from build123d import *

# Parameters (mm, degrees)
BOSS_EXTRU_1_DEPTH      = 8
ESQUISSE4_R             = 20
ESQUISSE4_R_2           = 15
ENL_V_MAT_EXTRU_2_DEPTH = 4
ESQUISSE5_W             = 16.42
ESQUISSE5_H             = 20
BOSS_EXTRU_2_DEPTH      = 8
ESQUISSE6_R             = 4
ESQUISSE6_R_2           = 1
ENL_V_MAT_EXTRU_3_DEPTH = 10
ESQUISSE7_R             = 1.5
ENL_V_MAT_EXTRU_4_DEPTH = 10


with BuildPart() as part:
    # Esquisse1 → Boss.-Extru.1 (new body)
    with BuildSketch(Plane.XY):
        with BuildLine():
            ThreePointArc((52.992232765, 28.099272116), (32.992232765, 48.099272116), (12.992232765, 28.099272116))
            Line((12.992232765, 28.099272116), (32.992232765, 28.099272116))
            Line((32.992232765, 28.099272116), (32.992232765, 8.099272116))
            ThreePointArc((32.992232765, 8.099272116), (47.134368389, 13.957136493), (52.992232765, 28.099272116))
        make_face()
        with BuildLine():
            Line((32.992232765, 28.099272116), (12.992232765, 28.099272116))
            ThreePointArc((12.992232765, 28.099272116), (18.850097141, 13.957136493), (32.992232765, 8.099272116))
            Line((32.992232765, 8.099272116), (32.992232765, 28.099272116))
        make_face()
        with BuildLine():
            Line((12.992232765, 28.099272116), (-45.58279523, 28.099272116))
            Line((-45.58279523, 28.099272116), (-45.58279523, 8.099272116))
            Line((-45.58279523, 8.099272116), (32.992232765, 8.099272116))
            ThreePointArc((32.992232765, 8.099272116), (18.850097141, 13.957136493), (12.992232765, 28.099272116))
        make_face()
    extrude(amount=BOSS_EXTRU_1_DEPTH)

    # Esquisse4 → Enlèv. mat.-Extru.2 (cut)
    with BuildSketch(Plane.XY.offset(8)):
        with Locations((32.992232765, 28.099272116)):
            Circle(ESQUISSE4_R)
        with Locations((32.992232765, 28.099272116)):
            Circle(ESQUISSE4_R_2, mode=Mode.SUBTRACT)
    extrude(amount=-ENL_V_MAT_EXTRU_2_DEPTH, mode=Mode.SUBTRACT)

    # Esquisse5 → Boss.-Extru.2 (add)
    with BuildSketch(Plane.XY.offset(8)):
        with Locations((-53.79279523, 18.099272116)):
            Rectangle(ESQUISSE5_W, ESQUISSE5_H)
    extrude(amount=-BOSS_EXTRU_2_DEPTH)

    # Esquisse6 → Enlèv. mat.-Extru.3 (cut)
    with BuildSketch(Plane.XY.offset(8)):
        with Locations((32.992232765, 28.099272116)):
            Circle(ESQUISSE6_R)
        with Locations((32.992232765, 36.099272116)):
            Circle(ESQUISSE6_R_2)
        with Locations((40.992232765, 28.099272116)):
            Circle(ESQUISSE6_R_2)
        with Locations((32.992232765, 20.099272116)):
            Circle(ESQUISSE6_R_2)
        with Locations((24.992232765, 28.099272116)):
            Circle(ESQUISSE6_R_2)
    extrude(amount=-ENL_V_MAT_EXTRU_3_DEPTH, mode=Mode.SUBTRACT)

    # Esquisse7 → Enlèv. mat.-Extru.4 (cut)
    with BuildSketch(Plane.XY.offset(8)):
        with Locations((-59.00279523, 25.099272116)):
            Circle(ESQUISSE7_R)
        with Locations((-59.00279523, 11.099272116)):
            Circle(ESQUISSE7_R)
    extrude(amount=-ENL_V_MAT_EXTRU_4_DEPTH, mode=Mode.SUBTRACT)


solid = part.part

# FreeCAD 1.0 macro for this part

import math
import FreeCAD as App
import Part
import Sketcher

V = App.Vector
Q = App.Units.Quantity

doc = App.newDocument("Part")
params = doc.addObject("Spreadsheet::Sheet", "Params")
for row, (alias, value) in enumerate([
    ("sketch1_radius", "20 mm"),
    ("pad1_length", "8 mm"),
    ("sketch2_diameter", "40 mm"),
    ("sketch2_diameter2", "30 mm"),
    ("pocket1_length", "4 mm"),
    ("sketch3_height", "20 mm"),
    ("sketch3_width", "16.42 mm"),
    ("pad2_length", "8 mm"),
    ("sketch4_diameter", "8 mm"),
    ("sketch4_diameter2", "2 mm"),
    ("pocket2_length", "10 mm"),
    ("sketch5_diameter", "3 mm"),
    ("pocket3_length", "10 mm"),
], start=1):
    params.set(f"A{row}", alias)
    params.set(f"B{row}", "=" + value)
    params.setAlias(f"B{row}", alias)

body = doc.addObject("PartDesign::Body", "Body")

# Sketch on XY plane
sketch1 = body.newObject("Sketcher::SketchObject", "Sketch")
sketch1.AttachmentSupport = (doc.getObject("XY_Plane"), [""])
sketch1.MapMode = "FlatFace"
sketch1.addGeometry(Part.ArcOfCircle(Part.Circle(V(32.992233, 28.099272, 0), V(0, 0, 1), 20), math.radians(0), math.radians(180)), False)
sketch1.addGeometry(Part.LineSegment(V(12.992233, 28.099272, 0), V(-45.582795, 28.099272, 0)), False)
sketch1.addGeometry(Part.LineSegment(V(-45.582795, 28.099272, 0), V(-45.582795, 8.099272, 0)), False)
sketch1.addGeometry(Part.LineSegment(V(-45.582795, 8.099272, 0), V(32.992233, 8.099272, 0)), False)
sketch1.addGeometry(Part.ArcOfCircle(Part.Circle(V(32.992233, 28.099272, 0), V(0, 0, 1), 20), math.radians(-90), math.radians(0)), False)
sketch1.addConstraint(Sketcher.Constraint("Coincident", 0, 2, 1, 1))
sketch1.addConstraint(Sketcher.Constraint("Coincident", 1, 2, 2, 1))
sketch1.addConstraint(Sketcher.Constraint("Coincident", 2, 2, 3, 1))
sketch1.addConstraint(Sketcher.Constraint("Tangent", 3, 2, 4, 1))
sketch1.addConstraint(Sketcher.Constraint("Tangent", 4, 2, 0, 1))
sketch1.addConstraint(Sketcher.Constraint("Horizontal", 1))
sketch1.addConstraint(Sketcher.Constraint("Vertical", 2))
sketch1.addConstraint(Sketcher.Constraint("Horizontal", 3))
sketch1.addConstraint(Sketcher.Constraint("Equal", 0, 4))
sketch1.addConstraint(Sketcher.Constraint("Horizontal", 4, 3, 0, 2))
sketch1.addConstraint(Sketcher.Constraint("Horizontal", 1, 2, 4, 2))
sketch1.addConstraint(Sketcher.Constraint("Radius", 0, Q("20 mm")))
sketch1.addConstraint(Sketcher.Constraint("DistanceX", 1, 2, 1, 1, Q("58.575028 mm")))
sketch1.addConstraint(Sketcher.Constraint("DistanceX", -1, 1, 0, 3, Q("32.992233 mm")))
sketch1.addConstraint(Sketcher.Constraint("DistanceY", -1, 1, 0, 3, Q("28.099272 mm")))
sketch1.setExpression("Constraints[11]", "Params.sketch1_radius")
pad1 = body.newObject("PartDesign::Pad", "Pad")
pad1.Profile = sketch1
pad1.setExpression("Length", "Params.pad1_length")

# Sketch on XY plane
sketch2 = body.newObject("Sketcher::SketchObject", "Sketch001")
sketch2.AttachmentSupport = (doc.getObject("XY_Plane"), [""])
sketch2.MapMode = "FlatFace"
sketch2.AttachmentOffset = App.Placement(V(0, 0, 8), App.Rotation())
sketch2.addGeometry(Part.Circle(V(32.992233, 28.099272, 0), V(0, 0, 1), 20), False)
sketch2.addGeometry(Part.Circle(V(32.992233, 28.099272, 0), V(0, 0, 1), 15), False)
sketch2.addConstraint(Sketcher.Constraint("Coincident", 1, 3, 0, 3))
sketch2.addConstraint(Sketcher.Constraint("Diameter", 0, Q("40 mm")))
sketch2.addConstraint(Sketcher.Constraint("Diameter", 1, Q("30 mm")))
sketch2.addConstraint(Sketcher.Constraint("DistanceX", -1, 1, 0, 3, Q("32.992233 mm")))
sketch2.addConstraint(Sketcher.Constraint("DistanceY", -1, 1, 0, 3, Q("28.099272 mm")))
sketch2.setExpression("Constraints[1]", "Params.sketch2_diameter")
sketch2.setExpression("Constraints[2]", "Params.sketch2_diameter2")
pocket1 = body.newObject("PartDesign::Pocket", "Pocket")
pocket1.Profile = sketch2
pocket1.setExpression("Length", "Params.pocket1_length")

# Sketch on XY plane
sketch3 = body.newObject("Sketcher::SketchObject", "Sketch002")
sketch3.AttachmentSupport = (doc.getObject("XY_Plane"), [""])
sketch3.MapMode = "FlatFace"
sketch3.AttachmentOffset = App.Placement(V(0, 0, 8), App.Rotation())
sketch3.addGeometry(Part.LineSegment(V(-62.002795, 28.099272, 0), V(-62.002795, 8.099272, 0)), False)
sketch3.addGeometry(Part.LineSegment(V(-62.002795, 8.099272, 0), V(-45.582795, 8.099272, 0)), False)
sketch3.addGeometry(Part.LineSegment(V(-45.582795, 8.099272, 0), V(-45.582795, 28.099272, 0)), False)
sketch3.addGeometry(Part.LineSegment(V(-45.582795, 28.099272, 0), V(-62.002795, 28.099272, 0)), False)
sketch3.addConstraint(Sketcher.Constraint("Coincident", 0, 2, 1, 1))
sketch3.addConstraint(Sketcher.Constraint("Coincident", 1, 2, 2, 1))
sketch3.addConstraint(Sketcher.Constraint("Coincident", 2, 2, 3, 1))
sketch3.addConstraint(Sketcher.Constraint("Coincident", 3, 2, 0, 1))
sketch3.addConstraint(Sketcher.Constraint("Vertical", 0))
sketch3.addConstraint(Sketcher.Constraint("Horizontal", 1))
sketch3.addConstraint(Sketcher.Constraint("Vertical", 2))
sketch3.addConstraint(Sketcher.Constraint("Horizontal", 3))
sketch3.addConstraint(Sketcher.Constraint("DistanceY", 0, 2, 0, 1, Q("20 mm")))
sketch3.addConstraint(Sketcher.Constraint("DistanceX", 1, 1, 1, 2, Q("16.42 mm")))
sketch3.addConstraint(Sketcher.Constraint("DistanceX", 0, 2, -1, 1, Q("62.002795 mm")))
sketch3.addConstraint(Sketcher.Constraint("DistanceY", -1, 1, 0, 2, Q("8.099272 mm")))
sketch3.setExpression("Constraints[8]", "Params.sketch3_height")
sketch3.setExpression("Constraints[9]", "Params.sketch3_width")
pad2 = body.newObject("PartDesign::Pad", "Pad001")
pad2.Profile = sketch3
pad2.setExpression("Length", "Params.pad2_length")
pad2.Reversed = True

# Sketch on XY plane
sketch4 = body.newObject("Sketcher::SketchObject", "Sketch003")
sketch4.AttachmentSupport = (doc.getObject("XY_Plane"), [""])
sketch4.MapMode = "FlatFace"
sketch4.AttachmentOffset = App.Placement(V(0, 0, 8), App.Rotation())
sketch4.addGeometry(Part.Circle(V(32.992233, 28.099272, 0), V(0, 0, 1), 4), False)
sketch4.addGeometry(Part.Circle(V(32.992233, 36.099272, 0), V(0, 0, 1), 1), False)
sketch4.addGeometry(Part.Circle(V(40.992233, 28.099272, 0), V(0, 0, 1), 1), False)
sketch4.addGeometry(Part.Circle(V(32.992233, 20.099272, 0), V(0, 0, 1), 1), False)
sketch4.addGeometry(Part.Circle(V(24.992233, 28.099272, 0), V(0, 0, 1), 1), False)
sketch4.addConstraint(Sketcher.Constraint("Equal", 1, 2))
sketch4.addConstraint(Sketcher.Constraint("Equal", 2, 3))
sketch4.addConstraint(Sketcher.Constraint("Equal", 3, 4))
sketch4.addConstraint(Sketcher.Constraint("Horizontal", 0, 3, 2, 3))
sketch4.addConstraint(Sketcher.Constraint("Horizontal", 2, 3, 4, 3))
sketch4.addConstraint(Sketcher.Constraint("Vertical", 0, 3, 1, 3))
sketch4.addConstraint(Sketcher.Constraint("Vertical", 1, 3, 3, 3))
sketch4.addConstraint(Sketcher.Constraint("Diameter", 0, Q("8 mm")))
sketch4.addConstraint(Sketcher.Constraint("Diameter", 1, Q("2 mm")))
sketch4.addConstraint(Sketcher.Constraint("DistanceY", 0, 3, 1, 3, Q("8 mm")))
sketch4.addConstraint(Sketcher.Constraint("DistanceX", 0, 3, 2, 3, Q("8 mm")))
sketch4.addConstraint(Sketcher.Constraint("DistanceY", 3, 3, 0, 3, Q("8 mm")))
sketch4.addConstraint(Sketcher.Constraint("DistanceX", 4, 3, 0, 3, Q("8 mm")))
sketch4.addConstraint(Sketcher.Constraint("DistanceX", -1, 1, 0, 3, Q("32.992233 mm")))
sketch4.addConstraint(Sketcher.Constraint("DistanceY", -1, 1, 0, 3, Q("28.099272 mm")))
sketch4.setExpression("Constraints[7]", "Params.sketch4_diameter")
sketch4.setExpression("Constraints[8]", "Params.sketch4_diameter2")
pocket2 = body.newObject("PartDesign::Pocket", "Pocket001")
pocket2.Profile = sketch4
pocket2.setExpression("Length", "Params.pocket2_length")

# Sketch on XY plane
sketch5 = body.newObject("Sketcher::SketchObject", "Sketch004")
sketch5.AttachmentSupport = (doc.getObject("XY_Plane"), [""])
sketch5.MapMode = "FlatFace"
sketch5.AttachmentOffset = App.Placement(V(0, 0, 8), App.Rotation())
sketch5.addGeometry(Part.Circle(V(-59.002795, 25.099272, 0), V(0, 0, 1), 1.5), False)
sketch5.addGeometry(Part.Circle(V(-59.002795, 11.099272, 0), V(0, 0, 1), 1.5), False)
sketch5.addConstraint(Sketcher.Constraint("Equal", 0, 1))
sketch5.addConstraint(Sketcher.Constraint("Vertical", 0, 3, 1, 3))
sketch5.addConstraint(Sketcher.Constraint("Diameter", 0, Q("3 mm")))
sketch5.addConstraint(Sketcher.Constraint("DistanceY", 1, 3, 0, 3, Q("14 mm")))
sketch5.addConstraint(Sketcher.Constraint("DistanceX", 0, 3, -1, 1, Q("59.002795 mm")))
sketch5.addConstraint(Sketcher.Constraint("DistanceY", -1, 1, 0, 3, Q("25.099272 mm")))
sketch5.setExpression("Constraints[2]", "Params.sketch5_diameter")
pocket3 = body.newObject("PartDesign::Pocket", "Pocket002")
pocket3.Profile = sketch5
pocket3.setExpression("Length", "Params.pocket3_length")

doc.recompute()
